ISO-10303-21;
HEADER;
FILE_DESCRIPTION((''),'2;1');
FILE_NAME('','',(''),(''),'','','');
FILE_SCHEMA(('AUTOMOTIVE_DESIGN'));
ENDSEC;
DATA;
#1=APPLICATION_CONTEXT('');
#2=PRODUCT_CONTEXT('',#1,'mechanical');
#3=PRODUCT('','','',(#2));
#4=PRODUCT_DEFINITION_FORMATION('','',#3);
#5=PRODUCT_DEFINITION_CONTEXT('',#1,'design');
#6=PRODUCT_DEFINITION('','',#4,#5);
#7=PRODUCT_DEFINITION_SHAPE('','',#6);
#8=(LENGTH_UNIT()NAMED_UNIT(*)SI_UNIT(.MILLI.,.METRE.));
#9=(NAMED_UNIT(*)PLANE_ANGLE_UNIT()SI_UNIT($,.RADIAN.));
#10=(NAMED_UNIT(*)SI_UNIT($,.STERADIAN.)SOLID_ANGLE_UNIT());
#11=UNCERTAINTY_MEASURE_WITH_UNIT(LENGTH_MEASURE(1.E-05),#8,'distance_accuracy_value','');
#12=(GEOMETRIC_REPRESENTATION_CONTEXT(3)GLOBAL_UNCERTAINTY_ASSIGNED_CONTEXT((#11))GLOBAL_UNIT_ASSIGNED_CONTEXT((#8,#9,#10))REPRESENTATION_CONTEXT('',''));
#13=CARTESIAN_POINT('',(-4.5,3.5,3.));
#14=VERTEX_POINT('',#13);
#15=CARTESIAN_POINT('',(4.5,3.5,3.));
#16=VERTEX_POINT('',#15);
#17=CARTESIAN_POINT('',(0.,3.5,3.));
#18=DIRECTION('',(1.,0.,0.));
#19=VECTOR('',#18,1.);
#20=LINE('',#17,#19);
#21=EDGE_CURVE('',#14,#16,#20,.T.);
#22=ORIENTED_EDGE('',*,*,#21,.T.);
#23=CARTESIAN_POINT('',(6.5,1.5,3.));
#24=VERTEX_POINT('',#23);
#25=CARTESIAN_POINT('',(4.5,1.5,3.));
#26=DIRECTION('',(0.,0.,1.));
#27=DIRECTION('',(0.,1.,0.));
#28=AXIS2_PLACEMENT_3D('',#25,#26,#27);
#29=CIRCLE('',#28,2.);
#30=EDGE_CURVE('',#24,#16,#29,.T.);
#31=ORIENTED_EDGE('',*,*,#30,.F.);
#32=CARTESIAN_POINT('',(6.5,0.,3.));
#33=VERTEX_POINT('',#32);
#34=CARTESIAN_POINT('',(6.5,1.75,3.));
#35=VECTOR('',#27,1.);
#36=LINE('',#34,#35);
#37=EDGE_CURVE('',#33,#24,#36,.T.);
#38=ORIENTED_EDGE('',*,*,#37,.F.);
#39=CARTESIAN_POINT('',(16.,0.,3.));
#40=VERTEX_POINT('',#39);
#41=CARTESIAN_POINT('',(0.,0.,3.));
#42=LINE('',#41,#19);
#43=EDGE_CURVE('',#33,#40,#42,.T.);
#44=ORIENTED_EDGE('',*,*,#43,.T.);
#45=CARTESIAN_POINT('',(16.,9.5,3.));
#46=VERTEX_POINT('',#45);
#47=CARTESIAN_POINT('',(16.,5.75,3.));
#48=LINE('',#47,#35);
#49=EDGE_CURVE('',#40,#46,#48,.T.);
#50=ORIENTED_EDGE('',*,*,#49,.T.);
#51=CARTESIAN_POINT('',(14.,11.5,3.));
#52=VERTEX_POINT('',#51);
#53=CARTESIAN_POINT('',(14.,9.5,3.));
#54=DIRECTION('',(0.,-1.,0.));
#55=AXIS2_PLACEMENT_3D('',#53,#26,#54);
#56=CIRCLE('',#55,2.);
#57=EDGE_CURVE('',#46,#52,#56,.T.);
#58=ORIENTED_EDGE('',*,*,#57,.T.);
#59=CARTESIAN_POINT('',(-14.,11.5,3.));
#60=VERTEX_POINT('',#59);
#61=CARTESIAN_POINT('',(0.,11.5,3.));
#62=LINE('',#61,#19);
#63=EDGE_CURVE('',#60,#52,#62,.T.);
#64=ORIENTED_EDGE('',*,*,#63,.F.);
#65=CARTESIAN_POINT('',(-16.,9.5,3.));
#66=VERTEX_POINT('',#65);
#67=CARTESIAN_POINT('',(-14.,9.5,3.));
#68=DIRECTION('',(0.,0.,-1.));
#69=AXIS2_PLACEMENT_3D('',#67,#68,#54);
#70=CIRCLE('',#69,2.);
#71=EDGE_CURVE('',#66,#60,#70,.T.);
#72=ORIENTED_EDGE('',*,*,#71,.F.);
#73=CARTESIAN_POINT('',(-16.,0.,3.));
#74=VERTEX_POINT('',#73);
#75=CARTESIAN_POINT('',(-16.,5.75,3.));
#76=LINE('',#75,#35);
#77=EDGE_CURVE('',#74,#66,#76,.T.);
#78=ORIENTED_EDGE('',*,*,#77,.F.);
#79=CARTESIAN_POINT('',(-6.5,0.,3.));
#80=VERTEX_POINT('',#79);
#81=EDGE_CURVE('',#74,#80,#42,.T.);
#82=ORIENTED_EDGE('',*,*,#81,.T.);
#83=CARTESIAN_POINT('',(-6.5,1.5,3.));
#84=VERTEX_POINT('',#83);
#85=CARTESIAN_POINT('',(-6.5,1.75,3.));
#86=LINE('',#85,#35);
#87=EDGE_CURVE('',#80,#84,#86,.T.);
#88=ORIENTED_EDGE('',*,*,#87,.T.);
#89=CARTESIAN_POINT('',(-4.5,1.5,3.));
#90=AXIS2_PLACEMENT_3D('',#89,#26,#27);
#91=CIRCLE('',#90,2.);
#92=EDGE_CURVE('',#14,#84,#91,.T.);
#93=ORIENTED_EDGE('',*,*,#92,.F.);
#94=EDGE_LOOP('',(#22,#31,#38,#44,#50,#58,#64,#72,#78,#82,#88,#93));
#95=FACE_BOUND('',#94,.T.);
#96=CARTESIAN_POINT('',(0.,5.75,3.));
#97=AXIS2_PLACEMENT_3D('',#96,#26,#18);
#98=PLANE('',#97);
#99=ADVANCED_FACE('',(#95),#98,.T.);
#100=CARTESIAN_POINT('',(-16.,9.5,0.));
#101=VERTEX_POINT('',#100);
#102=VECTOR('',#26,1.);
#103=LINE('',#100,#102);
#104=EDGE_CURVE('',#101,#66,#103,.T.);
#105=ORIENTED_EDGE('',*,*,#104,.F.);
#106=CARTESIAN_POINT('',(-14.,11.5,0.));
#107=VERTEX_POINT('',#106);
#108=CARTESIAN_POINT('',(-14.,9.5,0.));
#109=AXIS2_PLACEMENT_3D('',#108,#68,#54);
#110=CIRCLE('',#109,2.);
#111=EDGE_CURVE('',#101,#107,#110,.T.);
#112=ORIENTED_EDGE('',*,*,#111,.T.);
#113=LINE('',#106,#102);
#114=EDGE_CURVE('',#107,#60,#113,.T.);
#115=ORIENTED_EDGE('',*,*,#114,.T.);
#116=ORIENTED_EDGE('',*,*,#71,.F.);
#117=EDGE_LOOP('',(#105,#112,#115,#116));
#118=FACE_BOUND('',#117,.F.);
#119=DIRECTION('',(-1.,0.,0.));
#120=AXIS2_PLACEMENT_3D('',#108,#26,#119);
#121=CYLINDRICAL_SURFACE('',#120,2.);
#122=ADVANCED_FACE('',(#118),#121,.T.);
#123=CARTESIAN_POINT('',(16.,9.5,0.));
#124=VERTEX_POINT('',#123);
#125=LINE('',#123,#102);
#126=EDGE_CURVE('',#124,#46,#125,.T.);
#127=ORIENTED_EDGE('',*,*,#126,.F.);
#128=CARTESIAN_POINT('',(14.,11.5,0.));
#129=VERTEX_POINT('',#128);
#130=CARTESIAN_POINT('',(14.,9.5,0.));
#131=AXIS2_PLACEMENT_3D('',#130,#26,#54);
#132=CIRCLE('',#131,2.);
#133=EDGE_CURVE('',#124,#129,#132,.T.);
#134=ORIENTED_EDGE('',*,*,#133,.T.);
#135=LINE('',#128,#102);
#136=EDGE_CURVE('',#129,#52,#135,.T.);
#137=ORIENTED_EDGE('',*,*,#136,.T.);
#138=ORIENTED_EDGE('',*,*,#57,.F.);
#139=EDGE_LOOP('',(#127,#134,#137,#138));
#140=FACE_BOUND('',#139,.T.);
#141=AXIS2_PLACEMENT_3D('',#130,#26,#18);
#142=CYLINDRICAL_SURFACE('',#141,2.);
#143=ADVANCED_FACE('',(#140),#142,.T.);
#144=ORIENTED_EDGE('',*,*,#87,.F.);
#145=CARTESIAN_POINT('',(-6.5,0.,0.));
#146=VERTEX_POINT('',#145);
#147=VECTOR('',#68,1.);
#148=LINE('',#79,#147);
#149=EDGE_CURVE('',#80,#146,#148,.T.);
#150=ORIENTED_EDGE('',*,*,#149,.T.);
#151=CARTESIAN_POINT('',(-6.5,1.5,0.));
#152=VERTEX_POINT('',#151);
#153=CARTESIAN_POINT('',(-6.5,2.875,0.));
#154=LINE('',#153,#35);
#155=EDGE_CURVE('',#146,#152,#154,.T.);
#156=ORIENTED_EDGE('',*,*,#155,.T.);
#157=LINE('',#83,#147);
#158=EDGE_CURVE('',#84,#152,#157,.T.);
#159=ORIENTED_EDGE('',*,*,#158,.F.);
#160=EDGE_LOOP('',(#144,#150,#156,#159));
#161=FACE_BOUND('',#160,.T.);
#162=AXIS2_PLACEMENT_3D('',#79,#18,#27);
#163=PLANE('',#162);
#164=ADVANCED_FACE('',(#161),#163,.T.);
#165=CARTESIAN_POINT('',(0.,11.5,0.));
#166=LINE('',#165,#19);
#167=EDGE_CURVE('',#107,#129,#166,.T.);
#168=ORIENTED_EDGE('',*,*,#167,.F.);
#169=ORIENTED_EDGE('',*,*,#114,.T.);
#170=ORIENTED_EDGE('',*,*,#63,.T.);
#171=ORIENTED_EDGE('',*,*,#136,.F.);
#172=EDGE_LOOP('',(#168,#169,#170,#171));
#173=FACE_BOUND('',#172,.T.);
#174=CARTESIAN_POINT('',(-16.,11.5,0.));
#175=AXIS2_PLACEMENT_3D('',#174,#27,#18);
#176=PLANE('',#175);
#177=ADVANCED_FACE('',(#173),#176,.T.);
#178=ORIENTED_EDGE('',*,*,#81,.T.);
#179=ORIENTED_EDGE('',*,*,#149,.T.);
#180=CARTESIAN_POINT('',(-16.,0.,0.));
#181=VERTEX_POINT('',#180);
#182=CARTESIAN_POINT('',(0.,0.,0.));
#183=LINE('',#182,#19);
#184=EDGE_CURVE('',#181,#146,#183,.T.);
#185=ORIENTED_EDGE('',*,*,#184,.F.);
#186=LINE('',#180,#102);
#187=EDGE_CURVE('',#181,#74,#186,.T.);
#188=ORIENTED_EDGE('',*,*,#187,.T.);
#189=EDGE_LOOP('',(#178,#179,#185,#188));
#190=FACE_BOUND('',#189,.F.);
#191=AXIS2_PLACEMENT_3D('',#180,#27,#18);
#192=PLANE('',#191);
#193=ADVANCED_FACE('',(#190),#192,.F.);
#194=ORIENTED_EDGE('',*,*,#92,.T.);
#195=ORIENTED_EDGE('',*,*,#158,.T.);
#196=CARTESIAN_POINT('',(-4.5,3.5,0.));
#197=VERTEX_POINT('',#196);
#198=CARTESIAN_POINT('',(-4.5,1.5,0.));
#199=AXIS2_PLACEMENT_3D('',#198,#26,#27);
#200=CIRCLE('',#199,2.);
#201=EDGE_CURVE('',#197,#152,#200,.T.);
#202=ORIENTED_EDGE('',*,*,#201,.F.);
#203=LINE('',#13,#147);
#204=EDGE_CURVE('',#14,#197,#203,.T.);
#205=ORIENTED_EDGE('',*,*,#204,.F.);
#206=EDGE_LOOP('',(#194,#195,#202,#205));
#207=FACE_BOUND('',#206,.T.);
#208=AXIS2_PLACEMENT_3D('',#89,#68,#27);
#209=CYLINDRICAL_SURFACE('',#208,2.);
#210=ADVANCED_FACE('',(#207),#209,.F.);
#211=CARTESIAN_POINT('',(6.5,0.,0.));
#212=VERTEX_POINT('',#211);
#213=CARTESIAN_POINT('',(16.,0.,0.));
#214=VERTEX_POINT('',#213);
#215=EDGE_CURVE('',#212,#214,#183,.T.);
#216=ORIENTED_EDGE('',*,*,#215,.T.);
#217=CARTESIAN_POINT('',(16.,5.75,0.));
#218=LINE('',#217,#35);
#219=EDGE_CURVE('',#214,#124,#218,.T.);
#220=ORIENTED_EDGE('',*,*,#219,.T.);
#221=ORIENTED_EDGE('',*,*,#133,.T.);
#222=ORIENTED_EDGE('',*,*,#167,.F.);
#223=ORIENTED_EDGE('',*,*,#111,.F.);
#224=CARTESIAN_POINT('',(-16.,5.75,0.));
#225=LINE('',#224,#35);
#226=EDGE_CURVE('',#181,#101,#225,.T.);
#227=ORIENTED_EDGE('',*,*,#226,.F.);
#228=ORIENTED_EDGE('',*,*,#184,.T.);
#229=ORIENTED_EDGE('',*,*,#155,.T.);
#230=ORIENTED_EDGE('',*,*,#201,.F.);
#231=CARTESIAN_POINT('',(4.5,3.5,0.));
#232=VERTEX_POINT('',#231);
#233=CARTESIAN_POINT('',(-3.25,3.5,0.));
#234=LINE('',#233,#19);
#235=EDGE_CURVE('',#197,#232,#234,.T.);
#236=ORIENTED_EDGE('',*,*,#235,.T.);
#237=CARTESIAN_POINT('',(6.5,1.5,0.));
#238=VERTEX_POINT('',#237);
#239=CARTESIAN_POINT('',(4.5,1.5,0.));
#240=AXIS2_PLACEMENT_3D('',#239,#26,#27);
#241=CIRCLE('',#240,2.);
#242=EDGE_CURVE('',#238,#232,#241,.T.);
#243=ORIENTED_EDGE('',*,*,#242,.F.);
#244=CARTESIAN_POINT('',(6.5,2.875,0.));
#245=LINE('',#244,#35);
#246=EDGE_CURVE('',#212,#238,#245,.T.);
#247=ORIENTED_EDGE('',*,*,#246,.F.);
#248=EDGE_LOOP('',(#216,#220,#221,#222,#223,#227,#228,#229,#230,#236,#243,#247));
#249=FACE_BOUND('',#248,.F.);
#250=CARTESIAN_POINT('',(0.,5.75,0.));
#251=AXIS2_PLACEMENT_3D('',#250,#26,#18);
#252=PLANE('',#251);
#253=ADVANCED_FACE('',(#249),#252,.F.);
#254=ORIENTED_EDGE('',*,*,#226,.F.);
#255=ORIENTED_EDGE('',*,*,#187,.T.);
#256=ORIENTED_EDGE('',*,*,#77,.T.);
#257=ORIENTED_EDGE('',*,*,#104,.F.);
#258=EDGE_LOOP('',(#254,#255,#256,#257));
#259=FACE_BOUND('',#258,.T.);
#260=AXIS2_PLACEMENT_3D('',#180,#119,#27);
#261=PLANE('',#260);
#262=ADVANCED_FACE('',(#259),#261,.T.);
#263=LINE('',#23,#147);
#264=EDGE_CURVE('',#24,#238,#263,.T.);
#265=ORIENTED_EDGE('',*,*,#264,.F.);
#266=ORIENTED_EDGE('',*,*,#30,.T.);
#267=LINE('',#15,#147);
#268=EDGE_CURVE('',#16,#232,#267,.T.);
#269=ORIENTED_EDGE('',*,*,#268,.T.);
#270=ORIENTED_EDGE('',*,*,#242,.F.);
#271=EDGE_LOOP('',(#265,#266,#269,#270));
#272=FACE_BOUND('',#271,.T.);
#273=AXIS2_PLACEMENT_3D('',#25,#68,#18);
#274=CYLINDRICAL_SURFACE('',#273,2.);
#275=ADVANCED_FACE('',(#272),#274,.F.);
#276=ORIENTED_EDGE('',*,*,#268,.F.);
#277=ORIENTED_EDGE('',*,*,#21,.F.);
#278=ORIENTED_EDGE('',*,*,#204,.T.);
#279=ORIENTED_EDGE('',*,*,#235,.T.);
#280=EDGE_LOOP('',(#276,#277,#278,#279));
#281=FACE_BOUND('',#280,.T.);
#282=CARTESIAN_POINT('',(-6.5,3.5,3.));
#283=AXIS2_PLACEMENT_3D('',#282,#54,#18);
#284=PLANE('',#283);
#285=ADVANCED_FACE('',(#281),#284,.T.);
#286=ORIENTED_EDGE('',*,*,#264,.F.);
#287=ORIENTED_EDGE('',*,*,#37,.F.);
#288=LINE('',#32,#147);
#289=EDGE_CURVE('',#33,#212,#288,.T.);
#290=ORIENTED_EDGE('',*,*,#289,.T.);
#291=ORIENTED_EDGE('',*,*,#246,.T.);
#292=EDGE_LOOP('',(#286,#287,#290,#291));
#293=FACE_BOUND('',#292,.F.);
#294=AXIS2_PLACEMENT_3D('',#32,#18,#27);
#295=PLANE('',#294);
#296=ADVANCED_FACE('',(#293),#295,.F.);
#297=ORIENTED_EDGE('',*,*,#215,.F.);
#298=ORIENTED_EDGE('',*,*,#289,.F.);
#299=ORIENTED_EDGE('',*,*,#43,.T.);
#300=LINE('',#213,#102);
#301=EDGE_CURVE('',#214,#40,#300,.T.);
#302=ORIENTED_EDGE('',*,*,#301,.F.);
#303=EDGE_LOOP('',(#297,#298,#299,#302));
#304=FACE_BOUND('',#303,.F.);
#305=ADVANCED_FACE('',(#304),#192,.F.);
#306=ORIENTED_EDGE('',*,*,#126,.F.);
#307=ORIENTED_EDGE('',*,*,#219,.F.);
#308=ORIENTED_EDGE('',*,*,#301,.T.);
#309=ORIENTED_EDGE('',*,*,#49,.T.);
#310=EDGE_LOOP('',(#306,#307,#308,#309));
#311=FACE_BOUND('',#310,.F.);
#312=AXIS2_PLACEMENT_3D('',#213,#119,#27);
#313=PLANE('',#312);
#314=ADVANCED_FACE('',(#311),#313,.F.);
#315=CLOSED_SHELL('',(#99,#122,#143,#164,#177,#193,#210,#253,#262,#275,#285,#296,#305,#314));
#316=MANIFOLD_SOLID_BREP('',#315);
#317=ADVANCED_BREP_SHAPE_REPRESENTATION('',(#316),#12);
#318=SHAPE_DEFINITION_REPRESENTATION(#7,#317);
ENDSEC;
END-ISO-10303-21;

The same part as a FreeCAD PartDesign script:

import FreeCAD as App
import Part
import Sketcher
Q = App.Units.Quantity


def edges_at(feature, points):
    """Names of the edges that pass closest to the given points."""
    edges = feature.Shape.Edges
    near = lambda p: min(range(len(edges)), key=lambda i: edges[i].distToShape(Part.Vertex(*p))[0])
    return sorted({f"Edge{near(p) + 1}" for p in points})

doc = App.newDocument("Part")
body = doc.addObject("PartDesign::Body", "Body")

sketch1 = doc.addObject("Sketcher::SketchObject", "Sketch")
body.addObject(sketch1)
sketch1.AttachmentSupport = (doc.XY_Plane, [""])
sketch1.MapMode = "FlatFace"
sketch1.addGeometry([
    Part.LineSegment(App.Vector(-16, 12, 0), App.Vector(-16, 0, 0)),
    Part.LineSegment(App.Vector(-16, 0, 0), App.Vector(16, 0, 0)),
    Part.LineSegment(App.Vector(16, 0, 0), App.Vector(16, 12, 0)),
    Part.LineSegment(App.Vector(16, 12, 0), App.Vector(-16, 12, 0)),
], False)
sketch1.addConstraint([
    Sketcher.Constraint("Coincident", 0, 2, 1, 1),
    Sketcher.Constraint("Coincident", 1, 2, 2, 1),
    Sketcher.Constraint("Coincident", 2, 2, 3, 1),
    Sketcher.Constraint("Coincident", 3, 2, 0, 1),
    Sketcher.Constraint("Vertical", 0),
    Sketcher.Constraint("Horizontal", 1),
    Sketcher.Constraint("Vertical", 2),
    Sketcher.Constraint("Horizontal", 3),
    Sketcher.Constraint("Symmetric", 0, 2, 1, 2, -1, 1),
    Sketcher.Constraint("DistanceX", 1, 1, 1, 2, Q("32 mm")),
    Sketcher.Constraint("DistanceY", 0, 2, 0, 1, Q("11.5 mm")),
])
pad1 = doc.addObject("PartDesign::Pad", "Pad")
body.addObject(pad1)
pad1.Profile = sketch1
pad1.Length = 3
doc.recompute()

fillet = doc.addObject("PartDesign::Fillet", "Fillet")
body.addObject(fillet)
fillet.Base = (pad1, edges_at(pad1, [(-16, 11.5, 1.5), (16, 11.5, 1.5)]))
fillet.Radius = 2

sketch2 = doc.addObject("Sketcher::SketchObject", "Sketch001")
body.addObject(sketch2)
sketch2.AttachmentSupport = (doc.XY_Plane, [""])
sketch2.MapMode = "FlatFace"
sketch2.AttachmentOffset = App.Placement(App.Vector(0, 0, 3), App.Rotation())
sketch2.addGeometry([
    Part.LineSegment(App.Vector(-6.5, 3.5, 0), App.Vector(-6.5, 0, 0)),
    Part.LineSegment(App.Vector(-6.5, 0, 0), App.Vector(6.5, 0, 0)),
    Part.LineSegment(App.Vector(6.5, 0, 0), App.Vector(6.5, 3.5, 0)),
    Part.LineSegment(App.Vector(6.5, 3.5, 0), App.Vector(-6.5, 3.5, 0)),
], False)
sketch2.addConstraint([
    Sketcher.Constraint("Coincident", 0, 2, 1, 1),
    Sketcher.Constraint("Coincident", 1, 2, 2, 1),
    Sketcher.Constraint("Coincident", 2, 2, 3, 1),
    Sketcher.Constraint("Coincident", 3, 2, 0, 1),
    Sketcher.Constraint("Vertical", 0),
    Sketcher.Constraint("Horizontal", 1),
    Sketcher.Constraint("Vertical", 2),
    Sketcher.Constraint("Horizontal", 3),
    Sketcher.Constraint("Symmetric", 0, 2, 1, 2, -1, 1),
    Sketcher.Constraint("DistanceX", 1, 1, 1, 2, Q("13 mm")),
    Sketcher.Constraint("DistanceY", 0, 2, 0, 1, Q("3.5 mm")),
])
pocket1 = doc.addObject("PartDesign::Pocket", "Pocket")
body.addObject(pocket1)
pocket1.Profile = sketch2
pocket1.Type = "ThroughAll"
doc.recompute()

fillet2 = doc.addObject("PartDesign::Fillet", "Fillet001")
body.addObject(fillet2)
fillet2.Base = (pocket1, edges_at(pocket1, [(-6.5, 3.5, 1.5), (6.5, 3.5, 1.5)]))
fillet2.Radius = 2

doc.recompute()
